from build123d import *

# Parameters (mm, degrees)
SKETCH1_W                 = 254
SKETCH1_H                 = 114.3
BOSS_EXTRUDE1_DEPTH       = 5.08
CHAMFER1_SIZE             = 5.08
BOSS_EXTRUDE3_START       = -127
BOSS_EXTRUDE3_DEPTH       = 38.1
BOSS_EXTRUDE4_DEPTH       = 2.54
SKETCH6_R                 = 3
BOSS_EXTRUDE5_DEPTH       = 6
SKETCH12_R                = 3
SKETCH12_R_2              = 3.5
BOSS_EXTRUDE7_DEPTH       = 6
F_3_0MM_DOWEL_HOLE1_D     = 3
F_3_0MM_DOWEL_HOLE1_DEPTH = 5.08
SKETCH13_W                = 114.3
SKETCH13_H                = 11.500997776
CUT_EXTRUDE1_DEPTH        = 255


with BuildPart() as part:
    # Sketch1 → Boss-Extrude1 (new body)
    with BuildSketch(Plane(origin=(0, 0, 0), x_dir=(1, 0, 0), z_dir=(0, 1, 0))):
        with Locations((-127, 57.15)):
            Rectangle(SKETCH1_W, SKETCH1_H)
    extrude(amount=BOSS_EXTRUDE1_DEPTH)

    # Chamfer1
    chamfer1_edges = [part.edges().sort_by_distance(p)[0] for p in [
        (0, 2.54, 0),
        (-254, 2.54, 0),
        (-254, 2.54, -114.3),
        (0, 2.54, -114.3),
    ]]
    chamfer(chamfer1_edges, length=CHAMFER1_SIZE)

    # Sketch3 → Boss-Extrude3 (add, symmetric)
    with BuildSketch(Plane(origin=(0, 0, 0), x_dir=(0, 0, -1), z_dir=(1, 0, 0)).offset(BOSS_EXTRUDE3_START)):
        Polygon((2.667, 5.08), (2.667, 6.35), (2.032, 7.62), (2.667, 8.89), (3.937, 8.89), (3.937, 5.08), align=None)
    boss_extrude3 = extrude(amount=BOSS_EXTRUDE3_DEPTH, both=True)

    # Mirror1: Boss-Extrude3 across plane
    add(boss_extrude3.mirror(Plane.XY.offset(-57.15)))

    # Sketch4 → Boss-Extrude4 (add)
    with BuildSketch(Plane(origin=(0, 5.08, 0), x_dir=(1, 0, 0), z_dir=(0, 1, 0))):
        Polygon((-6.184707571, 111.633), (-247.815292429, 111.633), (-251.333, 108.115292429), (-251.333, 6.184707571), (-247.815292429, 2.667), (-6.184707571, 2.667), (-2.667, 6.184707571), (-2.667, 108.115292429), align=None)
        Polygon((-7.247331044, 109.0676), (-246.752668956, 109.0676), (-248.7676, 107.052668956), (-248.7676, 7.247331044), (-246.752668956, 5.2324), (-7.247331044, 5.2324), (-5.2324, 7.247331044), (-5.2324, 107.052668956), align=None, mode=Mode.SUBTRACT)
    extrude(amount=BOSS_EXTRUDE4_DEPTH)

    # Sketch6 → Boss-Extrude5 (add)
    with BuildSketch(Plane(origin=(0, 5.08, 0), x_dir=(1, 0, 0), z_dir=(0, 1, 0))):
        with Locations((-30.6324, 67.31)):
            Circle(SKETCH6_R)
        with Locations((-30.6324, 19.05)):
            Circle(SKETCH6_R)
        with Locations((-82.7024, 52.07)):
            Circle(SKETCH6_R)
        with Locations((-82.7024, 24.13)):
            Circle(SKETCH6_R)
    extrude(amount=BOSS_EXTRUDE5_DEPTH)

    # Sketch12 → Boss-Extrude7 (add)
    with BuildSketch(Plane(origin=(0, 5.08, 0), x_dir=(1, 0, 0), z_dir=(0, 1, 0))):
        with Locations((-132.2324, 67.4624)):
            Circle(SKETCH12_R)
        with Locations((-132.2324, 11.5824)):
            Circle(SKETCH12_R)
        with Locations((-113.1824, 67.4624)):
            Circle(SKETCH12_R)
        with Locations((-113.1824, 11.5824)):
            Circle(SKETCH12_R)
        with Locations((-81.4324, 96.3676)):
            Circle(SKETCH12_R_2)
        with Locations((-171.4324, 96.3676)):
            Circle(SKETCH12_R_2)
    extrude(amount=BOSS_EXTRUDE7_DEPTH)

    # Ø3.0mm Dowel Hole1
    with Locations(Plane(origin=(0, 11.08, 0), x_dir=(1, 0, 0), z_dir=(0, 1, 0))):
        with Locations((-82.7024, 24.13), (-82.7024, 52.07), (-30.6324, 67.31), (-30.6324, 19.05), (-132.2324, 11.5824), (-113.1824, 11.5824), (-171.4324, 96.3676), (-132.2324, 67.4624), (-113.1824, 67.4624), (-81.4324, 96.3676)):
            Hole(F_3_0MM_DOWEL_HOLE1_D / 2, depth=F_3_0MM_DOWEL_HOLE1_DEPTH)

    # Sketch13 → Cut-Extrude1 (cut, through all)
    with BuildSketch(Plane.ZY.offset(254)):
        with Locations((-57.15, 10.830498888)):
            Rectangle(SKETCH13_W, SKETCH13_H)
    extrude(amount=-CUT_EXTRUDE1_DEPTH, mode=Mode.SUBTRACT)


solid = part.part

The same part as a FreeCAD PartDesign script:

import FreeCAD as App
import Part
import Sketcher
from FreeCAD import Vector
Q = App.Units.Quantity


def edges_at(feature, points):
    """Names of the edges that pass closest to the given points."""
    edges = feature.Shape.Edges
    near = lambda p: min(range(len(edges)), key=lambda i: edges[i].distToShape(Part.Vertex(*p))[0])
    return sorted({f"Edge{near(p) + 1}" for p in points})


def add_polygon(sketch, points):
    """Adds a closed chain of lines whose ends are joined by coincident constraints."""
    first, n = sketch.GeometryCount, len(points)
    for a, b in zip(points, points[1:] + points[:1]):
        sketch.addGeometry(Part.LineSegment(App.Vector(*a, 0), App.Vector(*b, 0)), False)
    for i in range(n):
        sketch.addConstraint(Sketcher.Constraint("Coincident", first + i, 2, first + (i + 1) % n, 1))

doc = App.newDocument("Part")
body = doc.addObject("PartDesign::Body", "Body")

# Sketch on XZ plane
sketch1 = body.newObject("Sketcher::SketchObject", "Sketch")
sketch1.AttachmentSupport = (doc.getObject("XZ_Plane"), [""])
sketch1.MapMode = "FlatFace"
add_polygon(sketch1, [(-254, -114), (-254, 0), (0, 0), (0, -114)])  # lines 0-3
sketch1.addConstraint(Sketcher.Constraint("Vertical", 0))
sketch1.addConstraint(Sketcher.Constraint("Horizontal", 1))
sketch1.addConstraint(Sketcher.Constraint("Vertical", 2))
sketch1.addConstraint(Sketcher.Constraint("Horizontal", 3))
sketch1.addConstraint(Sketcher.Constraint("Coincident", 1, 2, -1, 1))
sketch1.addConstraint(Sketcher.Constraint("DistanceX", 1, 1, 1, 2, Q("10 in")))
sketch1.addConstraint(Sketcher.Constraint("DistanceY", 0, 1, 0, 2, Q("4.5 in")))
pad1 = body.newObject("PartDesign::Pad", "Pad")
pad1.Profile = sketch1
pad1.Length = Q("0.2 in")
pad1.Reversed = True
doc.recompute()

chamfer = body.newObject("PartDesign::Chamfer", "Chamfer")
chamfer.Base = (pad1, edges_at(pad1, [
    (0, 2.54, 0),
    (-254, 2.54, 0),
    (-254, 2.54, -114.3),
    (0, 2.54, -114.3),
]))
chamfer.Size = Q("0.2 in")

# Sketch on YZ plane
sketch2 = body.newObject("Sketcher::SketchObject", "Sketch001")
sketch2.AttachmentSupport = (doc.getObject("YZ_Plane"), [""])
sketch2.MapMode = "FlatFace"
sketch2.AttachmentOffset = App.Placement(Vector(0, 0, -5 * 25.4), App.Rotation())
add_polygon(sketch2, [(6.3, -2.7), (5.1, -2.7), (5.1, -3.9), (8.9, -3.9), (8.9, -2.7), (7.6, -2)])  # lines 0-5
sketch2.addConstraint(Sketcher.Constraint("Horizontal", 0))
sketch2.addConstraint(Sketcher.Constraint("Vertical", 1))
sketch2.addConstraint(Sketcher.Constraint("Horizontal", 2))
sketch2.addConstraint(Sketcher.Constraint("Vertical", 3))
sketch2.addConstraint(Sketcher.Constraint("Horizontal", 0, 2, 3, 2))
sketch2.addConstraint(Sketcher.Constraint("Equal", 0, 1))
sketch2.addConstraint(Sketcher.Constraint("Equal", 4, 5))
sketch2.addConstraint(Sketcher.Constraint("DistanceX", 0, 2, 0, 1, Q("0.05 in")))
sketch2.addConstraint(Sketcher.Constraint("DistanceX", 2, 1, 2, 2, Q("0.15 in")))
sketch2.addConstraint(Sketcher.Constraint("DistanceX", -1, 1, 0, 2, Q("0.2 in")))
sketch2.addConstraint(Sketcher.Constraint("DistanceY", 4, 2, -1, 1, Q("0.08 in")))
sketch2.addConstraint(Sketcher.Constraint("DistanceY", 0, 2, -1, 1, Q("0.105 in")))
pad2 = body.newObject("PartDesign::Pad", "Pad001")
pad2.Profile = sketch2
pad2.Length = Q("3 in")
pad2.Midplane = True
doc.recompute()

datumplane = body.newObject("PartDesign::Plane", "DatumPlane")
datumplane.AttachmentSupport = (doc.getObject("XY_Plane"), [""])
datumplane.MapMode = "FlatFace"
datumplane.AttachmentOffset = App.Placement(Vector(0, 0, -2.25 * 25.4), App.Rotation())
mirrored = body.newObject("PartDesign::Mirrored", "Mirrored")
mirrored.Originals = [pad2]
mirrored.MirrorPlane = (datumplane, [""])
body.Tip = mirrored

# Sketch on XZ plane
sketch3 = body.newObject("Sketcher::SketchObject", "Sketch002")
sketch3.AttachmentSupport = (doc.getObject("XZ_Plane"), [""])
sketch3.MapMode = "FlatFace"
sketch3.AttachmentOffset = App.Placement(Vector(0, 0, -0.2 * 25.4), App.Rotation())
add_polygon(sketch3, [(-6.2, -111.6), (-247.8, -111.6), (-251.3, -108.1), (-251.3, -6.2), (-247.8, -2.7), (-6.2, -2.7), (-2.7, -6.2), (-2.7, -108.1)])  # lines 0-7
add_polygon(sketch3, [(-246.8, -109.1), (-7.2, -109.1), (-5.2, -107.1), (-5.2, -7.2), (-7.2, -5.2), (-246.8, -5.2), (-248.8, -7.2), (-248.8, -107.1)])  # lines 8-15
sketch3.addConstraint(Sketcher.Constraint("Horizontal", 0))
sketch3.addConstraint(Sketcher.Constraint("Vertical", 2))
sketch3.addConstraint(Sketcher.Constraint("Horizontal", 4))
sketch3.addConstraint(Sketcher.Constraint("Vertical", 6))
sketch3.addConstraint(Sketcher.Constraint("Horizontal", 8))
sketch3.addConstraint(Sketcher.Constraint("Vertical", 10))
sketch3.addConstraint(Sketcher.Constraint("Horizontal", 12))
sketch3.addConstraint(Sketcher.Constraint("Vertical", 14))
sketch3.addConstraint(Sketcher.Constraint("Perpendicular", 1, 3))
sketch3.addConstraint(Sketcher.Constraint("Perpendicular", 3, 5))
sketch3.addConstraint(Sketcher.Constraint("Perpendicular", 5, 7))
sketch3.addConstraint(Sketcher.Constraint("Parallel", 7, 9))
sketch3.addConstraint(Sketcher.Constraint("Perpendicular", 9, 11))
sketch3.addConstraint(Sketcher.Constraint("Perpendicular", 11, 13))
sketch3.addConstraint(Sketcher.Constraint("Perpendicular", 13, 15))
sketch3.addConstraint(Sketcher.Constraint("Horizontal", 2, 2, 5, 2))
sketch3.addConstraint(Sketcher.Constraint("Horizontal", 1, 2, 6, 2))
sketch3.addConstraint(Sketcher.Constraint("Horizontal", 10, 2, 13, 2))
sketch3.addConstraint(Sketcher.Constraint("Horizontal", 9, 2, 14, 2))
sketch3.addConstraint(Sketcher.Constraint("Vertical", 0, 2, 3, 2))
sketch3.addConstraint(Sketcher.Constraint("Vertical", 4, 2, 7, 2))
sketch3.addConstraint(Sketcher.Constraint("Vertical", 8, 2, 11, 2))
sketch3.addConstraint(Sketcher.Constraint("DistanceY", 0, 2, 3, 2, Q("4.29 in")))
sketch3.addConstraint(Sketcher.Constraint("DistanceX", 2, 2, 5, 2, Q("9.79 in")))
sketch3.addConstraint(Sketcher.Constraint("DistanceY", 0, 2, -1, 1, Q("4.395 in")))
sketch3.addConstraint(Sketcher.Constraint("DistanceX", 1, 2, -1, 1, Q("9.895 in")))
sketch3.addConstraint(Sketcher.Constraint("DistanceY", 8, 2, -1, 1, Q("4.294 in")))
sketch3.addConstraint(Sketcher.Constraint("DistanceX", 9, 2, -1, 1, Q("0.206 in")))
sketch3.addConstraint(Sketcher.Constraint("DistanceY", 11, 2, -1, 1, Q("0.206 in")))
sketch3.addConstraint(Sketcher.Constraint("DistanceX", 13, 2, -1, 1, Q("9.794 in")))
sketch3.addConstraint(Sketcher.Constraint("Distance", 1, 4.97479))
sketch3.addConstraint(Sketcher.Constraint("DistanceX", 8, 1, 8, 2, 239.505338))
pad3 = body.newObject("PartDesign::Pad", "Pad002")
pad3.Profile = sketch3
pad3.Length = Q("0.1 in")
pad3.Reversed = True

# Sketch on XZ plane
sketch4 = body.newObject("Sketcher::SketchObject", "Sketch003")
sketch4.AttachmentSupport = (doc.getObject("XZ_Plane"), [""])
sketch4.MapMode = "FlatFace"
sketch4.AttachmentOffset = App.Placement(Vector(0, 0, -0.2 * 25.4), App.Rotation())
sketch4.addGeometry(Part.Circle(Vector(-30.6, -67.3, 0), Vector(0, 0, 1), 3), False)
sketch4.addGeometry(Part.Circle(Vector(-30.6, -19.1, 0), Vector(0, 0, 1), 3), False)
sketch4.addGeometry(Part.Circle(Vector(-82.7, -52.1, 0), Vector(0, 0, 1), 3), False)
sketch4.addGeometry(Part.Circle(Vector(-82.7, -24.1, 0), Vector(0, 0, 1), 3), False)
sketch4.addConstraint(Sketcher.Constraint("Equal", 0, 1))
sketch4.addConstraint(Sketcher.Constraint("Equal", 1, 2))
sketch4.addConstraint(Sketcher.Constraint("Equal", 2, 3))
sketch4.addConstraint(Sketcher.Constraint("Vertical", 0, 3, 1, 3))
sketch4.addConstraint(Sketcher.Constraint("Vertical", 2, 3, 3, 3))
sketch4.addConstraint(Sketcher.Constraint("DistanceY", 0, 3, 1, 3, Q("1.9 in")))
sketch4.addConstraint(Sketcher.Constraint("DistanceY", 0, 3, 2, 3, Q("0.6 in")))
sketch4.addConstraint(Sketcher.Constraint("DistanceY", 2, 3, 3, 3, Q("1.1 in")))
sketch4.addConstraint(Sketcher.Constraint("Diameter", 0, 6.0))
sketch4.addConstraint(Sketcher.Constraint("DistanceY", 0, 3, -1, 1, Q("2.65 in")))
sketch4.addConstraint(Sketcher.Constraint("DistanceX", 2, 3, 0, 3, Q("2.05 in")))
sketch4.addConstraint(Sketcher.Constraint("DistanceX", 0, 3, -1, 1, Q("1.206 in")))
pad4 = body.newObject("PartDesign::Pad", "Pad003")
pad4.Profile = sketch4
pad4.Length = 6
pad4.Reversed = True

# Sketch on XZ plane
sketch5 = body.newObject("Sketcher::SketchObject", "Sketch004")
sketch5.AttachmentSupport = (doc.getObject("XZ_Plane"), [""])
sketch5.MapMode = "FlatFace"
sketch5.AttachmentOffset = App.Placement(Vector(0, 0, -0.2 * 25.4), App.Rotation())
sketch5.addGeometry(Part.Circle(Vector(-132.2, -67.5, 0), Vector(0, 0, 1), 3), False)
sketch5.addGeometry(Part.Circle(Vector(-132.2, -11.6, 0), Vector(0, 0, 1), 3), False)
sketch5.addGeometry(Part.Circle(Vector(-113.2, -67.5, 0), Vector(0, 0, 1), 3), False)
sketch5.addGeometry(Part.Circle(Vector(-113.2, -11.6, 0), Vector(0, 0, 1), 3), False)
sketch5.addGeometry(Part.Circle(Vector(-81.4, -96.4, 0), Vector(0, 0, 1), 3.5), False)
sketch5.addGeometry(Part.Circle(Vector(-171.4, -96.4, 0), Vector(0, 0, 1), 3.5), False)
sketch5.addConstraint(Sketcher.Constraint("Equal", 0, 1))
sketch5.addConstraint(Sketcher.Constraint("Equal", 1, 2))
sketch5.addConstraint(Sketcher.Constraint("Equal", 2, 3))
sketch5.addConstraint(Sketcher.Constraint("Equal", 4, 5))
sketch5.addConstraint(Sketcher.Constraint("Horizontal", 0, 3, 2, 3))
sketch5.addConstraint(Sketcher.Constraint("Horizontal", 1, 3, 3, 3))
sketch5.addConstraint(Sketcher.Constraint("Horizontal", 4, 3, 5, 3))
sketch5.addConstraint(Sketcher.Constraint("Vertical", 0, 3, 1, 3))
sketch5.addConstraint(Sketcher.Constraint("Vertical", 2, 3, 3, 3))
sketch5.addConstraint(Sketcher.Constraint("DistanceX", 0, 3, 4, 3, Q("2 in")))
sketch5.addConstraint(Sketcher.Constraint("DistanceY", 0, 3, 1, 3, Q("2.2 in")))
sketch5.addConstraint(Sketcher.Constraint("Diameter", 0, 6.0))
sketch5.addConstraint(Sketcher.Constraint("Diameter", 4, 7.0))
sketch5.addConstraint(Sketcher.Constraint("DistanceX", 0, 3, 2, 3, Q("0.75 in")))
sketch5.addConstraint(Sketcher.Constraint("DistanceX", 0, 3, -1, 1, Q("5.206 in")))
sketch5.addConstraint(Sketcher.Constraint("DistanceY", 0, 3, -1, 1, Q("2.656 in")))
sketch5.addConstraint(Sketcher.Constraint("DistanceY", 4, 3, -1, 1, Q("3.794 in")))
sketch5.addConstraint(Sketcher.Constraint("DistanceX", 5, 3, -1, 1, 171.4324))
pad5 = body.newObject("PartDesign::Pad", "Pad004")
pad5.Profile = sketch5
pad5.Length = 6
pad5.Reversed = True

# Sketch on XZ plane
sketch6 = body.newObject("Sketcher::SketchObject", "Sketch005")
sketch6.AttachmentSupport = (doc.getObject("XZ_Plane"), [""])
sketch6.MapMode = "FlatFace"
sketch6.AttachmentOffset = App.Placement(Vector(0, 0, -11.08), App.Rotation())
sketch6.addGeometry(Part.Circle(Vector(-82.7, -24.1, 0), Vector(0, 0, 1), 1.5), False)
sketch6.addGeometry(Part.Circle(Vector(-82.7, -52.1, 0), Vector(0, 0, 1), 1.5), False)
sketch6.addGeometry(Part.Circle(Vector(-30.6, -67.3, 0), Vector(0, 0, 1), 1.5), False)
sketch6.addGeometry(Part.Circle(Vector(-30.6, -19.1, 0), Vector(0, 0, 1), 1.5), False)
sketch6.addGeometry(Part.Circle(Vector(-132.2, -11.6, 0), Vector(0, 0, 1), 1.5), False)
sketch6.addGeometry(Part.Circle(Vector(-113.2, -11.6, 0), Vector(0, 0, 1), 1.5), False)
sketch6.addGeometry(Part.Circle(Vector(-171.4, -96.4, 0), Vector(0, 0, 1), 1.5), False)
sketch6.addGeometry(Part.Circle(Vector(-132.2, -67.5, 0), Vector(0, 0, 1), 1.5), False)
sketch6.addGeometry(Part.Circle(Vector(-113.2, -67.5, 0), Vector(0, 0, 1), 1.5), False)
sketch6.addGeometry(Part.Circle(Vector(-81.4, -96.4, 0), Vector(0, 0, 1), 1.5), False)
sketch6.addConstraint(Sketcher.Constraint("Equal", 0, 1))
sketch6.addConstraint(Sketcher.Constraint("Equal", 1, 2))
sketch6.addConstraint(Sketcher.Constraint("Equal", 2, 3))
sketch6.addConstraint(Sketcher.Constraint("Equal", 3, 4))
sketch6.addConstraint(Sketcher.Constraint("Equal", 4, 5))
sketch6.addConstraint(Sketcher.Constraint("Equal", 5, 6))
sketch6.addConstraint(Sketcher.Constraint("Equal", 6, 7))
sketch6.addConstraint(Sketcher.Constraint("Equal", 7, 8))
sketch6.addConstraint(Sketcher.Constraint("Equal", 8, 9))
sketch6.addConstraint(Sketcher.Constraint("Horizontal", 4, 3, 5, 3))
sketch6.addConstraint(Sketcher.Constraint("Horizontal", 7, 3, 8, 3))
sketch6.addConstraint(Sketcher.Constraint("Horizontal", 6, 3, 9, 3))
sketch6.addConstraint(Sketcher.Constraint("Vertical", 0, 3, 1, 3))
sketch6.addConstraint(Sketcher.Constraint("Vertical", 2, 3, 3, 3))
sketch6.addConstraint(Sketcher.Constraint("Vertical", 4, 3, 7, 3))
sketch6.addConstraint(Sketcher.Constraint("Vertical", 5, 3, 8, 3))
sketch6.addConstraint(Sketcher.Constraint("DistanceX", 4, 3, 3, 3, Q("4 in")))
sketch6.addConstraint(Sketcher.Constraint("DistanceX", 7, 3, 9, 3, Q("2 in")))
sketch6.addConstraint(Sketcher.Constraint("DistanceY", 1, 3, 0, 3, Q("1.1 in")))
sketch6.addConstraint(Sketcher.Constraint("DistanceY", 2, 3, 1, 3, Q("0.6 in")))
sketch6.addConstraint(Sketcher.Constraint("DistanceY", 2, 3, 3, 3, Q("1.9 in")))
sketch6.addConstraint(Sketcher.Constraint("DistanceX", 5, 3, 0, 3, Q("1.2 in")))
sketch6.addConstraint(Sketcher.Constraint("DistanceY", 7, 3, 4, 3, Q("2.2 in")))
sketch6.addConstraint(Sketcher.Constraint("Diameter", 0, 3.0))
sketch6.addConstraint(Sketcher.Constraint("DistanceY", 0, 3, -1, 1, Q("0.95 in")))
sketch6.addConstraint(Sketcher.Constraint("DistanceX", 1, 3, 2, 3, Q("2.05 in")))
sketch6.addConstraint(Sketcher.Constraint("DistanceX", 0, 3, -1, 1, Q("3.256 in")))
sketch6.addConstraint(Sketcher.Constraint("DistanceY", 4, 3, -1, 1, Q("0.456 in")))
sketch6.addConstraint(Sketcher.Constraint("DistanceY", 6, 3, -1, 1, Q("3.794 in")))
sketch6.addConstraint(Sketcher.Constraint("DistanceX", 6, 3, -1, 1, 171.4324))
doc.recompute()
hole = body.newObject("PartDesign::Hole", "Hole")
hole.Profile = sketch6
hole.ThreadType = "None"
hole.Diameter = 3
hole.DepthType = "Dimension"
hole.Depth = Q("0.2 in")
hole.DrillPoint = "Flat"
hole.Reversed = True

# Sketch on YZ plane
sketch7 = body.newObject("Sketcher::SketchObject", "Sketch006")
sketch7.AttachmentSupport = (doc.getObject("YZ_Plane"), [""])
sketch7.MapMode = "FlatFace"
sketch7.AttachmentOffset = App.Placement(Vector(0, 0, -10 * 25.4), App.Rotation())
add_polygon(sketch7, [(17, -114), (5, -114), (5, 0), (17, 0)])  # lines 0-3
sketch7.addConstraint(Sketcher.Constraint("Horizontal", 0))
sketch7.addConstraint(Sketcher.Constraint("Vertical", 1))
sketch7.addConstraint(Sketcher.Constraint("Horizontal", 2))
sketch7.addConstraint(Sketcher.Constraint("Vertical", 3))
sketch7.addConstraint(Sketcher.Constraint("PointOnObject", 1, 2, -1))
sketch7.addConstraint(Sketcher.Constraint("DistanceY", 1, 1, 1, 2, Q("4.5 in")))
sketch7.addConstraint(Sketcher.Constraint("DistanceX", -1, 1, 0, 2, Q("0.2 in")))
sketch7.addConstraint(Sketcher.Constraint("DistanceX", 0, 2, 0, 1, 11.500998))
pocket1 = body.newObject("PartDesign::Pocket", "Pocket")
pocket1.Profile = sketch7
pocket1.Type = "ThroughAll"
pocket1.Reversed = True

doc.recompute()
